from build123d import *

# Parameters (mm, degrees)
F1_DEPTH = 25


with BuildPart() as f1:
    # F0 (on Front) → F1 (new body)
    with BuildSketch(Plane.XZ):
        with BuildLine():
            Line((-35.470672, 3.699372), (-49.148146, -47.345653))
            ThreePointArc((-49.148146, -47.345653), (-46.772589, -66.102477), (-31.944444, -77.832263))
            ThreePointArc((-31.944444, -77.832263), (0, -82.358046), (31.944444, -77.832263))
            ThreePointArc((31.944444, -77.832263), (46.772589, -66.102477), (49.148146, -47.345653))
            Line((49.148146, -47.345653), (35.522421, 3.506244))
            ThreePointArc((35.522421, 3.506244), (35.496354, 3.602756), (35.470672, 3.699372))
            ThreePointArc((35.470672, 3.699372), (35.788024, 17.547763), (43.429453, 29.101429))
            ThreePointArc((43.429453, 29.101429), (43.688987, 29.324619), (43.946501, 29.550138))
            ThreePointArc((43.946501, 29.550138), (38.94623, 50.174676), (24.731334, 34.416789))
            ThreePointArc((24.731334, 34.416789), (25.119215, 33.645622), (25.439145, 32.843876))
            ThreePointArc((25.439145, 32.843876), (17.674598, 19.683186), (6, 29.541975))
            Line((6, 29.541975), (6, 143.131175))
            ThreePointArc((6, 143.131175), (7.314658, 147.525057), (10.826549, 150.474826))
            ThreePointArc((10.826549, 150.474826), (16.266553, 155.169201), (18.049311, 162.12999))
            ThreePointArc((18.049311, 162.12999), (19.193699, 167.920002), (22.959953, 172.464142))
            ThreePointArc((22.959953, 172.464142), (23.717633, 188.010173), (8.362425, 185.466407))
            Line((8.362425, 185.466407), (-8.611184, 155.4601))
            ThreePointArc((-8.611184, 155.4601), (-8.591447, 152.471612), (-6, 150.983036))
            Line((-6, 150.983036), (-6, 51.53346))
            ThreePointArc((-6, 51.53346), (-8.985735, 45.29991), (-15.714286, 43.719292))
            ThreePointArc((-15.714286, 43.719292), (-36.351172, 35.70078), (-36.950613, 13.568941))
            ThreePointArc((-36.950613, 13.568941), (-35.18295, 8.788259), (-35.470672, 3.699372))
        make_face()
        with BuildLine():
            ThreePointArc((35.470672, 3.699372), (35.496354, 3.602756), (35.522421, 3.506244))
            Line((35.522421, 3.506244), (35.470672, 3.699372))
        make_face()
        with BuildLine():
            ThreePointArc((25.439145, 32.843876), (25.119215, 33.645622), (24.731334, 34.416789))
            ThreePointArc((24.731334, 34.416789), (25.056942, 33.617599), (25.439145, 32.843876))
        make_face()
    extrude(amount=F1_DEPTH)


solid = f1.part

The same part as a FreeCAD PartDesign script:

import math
import FreeCAD as App
import Part
import Sketcher
Q = App.Units.Quantity

doc = App.newDocument("Part")
body = doc.addObject("PartDesign::Body", "Body")

# Sketch on XZ plane
sketch1 = doc.addObject("Sketcher::SketchObject", "Sketch")
body.addObject(sketch1)
sketch1.AttachmentSupport = (doc.XZ_Plane, [""])
sketch1.MapMode = "FlatFace"
sketch1.addGeometry(Part.LineSegment(App.Vector(-35.470672, 3.699372, 0), App.Vector(-49.148146, -47.345653, 0)), False)
sketch1.addGeometry(Part.ArcOfCircle(Part.Circle(App.Vector(-24.999999, -53.816128, 0), App.Vector(0, 0, 1), 25.000001), math.radians(165.000004), math.radians(253.872378)), False)
sketch1.addGeometry(Part.ArcOfCircle(Part.Circle(App.Vector(0, 32.641968, 0), App.Vector(0, 0, 1), 115.000014), math.radians(-106.127618), math.radians(-73.872382)), False)
sketch1.addGeometry(Part.ArcOfCircle(Part.Circle(App.Vector(24.999999, -53.816128, 0), App.Vector(0, 0, 1), 25.000001), math.radians(-73.872378), math.radians(14.999996)), False)
sketch1.addGeometry(Part.LineSegment(App.Vector(49.148146, -47.345653, 0), App.Vector(35.522421, 3.506244, 0)), False)
sketch1.addGeometry(Part.LineSegment(App.Vector(35.522421, 3.506244, 0), App.Vector(35.470672, 3.699372, 0)), False)
sketch1.addGeometry(Part.ArcOfCircle(Part.Circle(App.Vector(59.644497, 10.073232, 0), App.Vector(0, 0, 1), 24.999999), math.radians(130.436267), math.radians(194.770885)), False)
sketch1.addGeometry(Part.ArcOfCircle(Part.Circle(App.Vector(18.778443, 58.029074, 0), App.Vector(0, 0, 1), 38.006328), math.radians(-49.563659), math.radians(-48.531587)), False)
sketch1.addGeometry(Part.ArcOfCircle(Part.Circle(App.Vector(36, 38.541975, 0), App.Vector(0, 0, 1), 12), math.radians(-48.531486), math.radians(200.106455)), False)
sketch1.addGeometry(Part.ArcOfCircle(Part.Circle(App.Vector(35.999917, 38.541938, 0), App.Vector(0, 0, 1), 11.999909), math.radians(-159.893572), math.radians(-151.650928)), False)
sketch1.addGeometry(Part.ArcOfCircle(Part.Circle(App.Vector(16, 29.541975, 0), App.Vector(0, 0, 1), 10), math.radians(-179.999999), math.radians(19.280312)), False)
sketch1.addGeometry(Part.LineSegment(App.Vector(6, 29.541975, 0), App.Vector(6, 143.131175, 0)), False)
sketch1.addGeometry(Part.ArcOfCircle(Part.Circle(App.Vector(14.000001, 143.131174, 0), App.Vector(0, 0, 1), 8.000001), math.radians(113.370885), math.radians(179.999995)), False)
sketch1.addGeometry(Part.ArcOfCircle(Part.Circle(App.Vector(6.066372, 161.490303, 0), App.Vector(0, 0, 1), 12.000001), math.radians(-66.629122), math.radians(3.055728)), False)
sketch1.addGeometry(Part.ArcOfCircle(Part.Circle(App.Vector(30.032249, 162.769678, 0), App.Vector(0, 0, 1), 12), math.radians(126.111463), math.radians(183.055733)), False)
sketch1.addGeometry(Part.ArcOfCircle(Part.Circle(App.Vector(17.066373, 180.542862, 0), App.Vector(0, 0, 1), 10), math.radians(-53.888535), math.radians(150.504545)), False)
sketch1.addGeometry(Part.LineSegment(App.Vector(8.362425, 185.466407, 0), App.Vector(-8.611184, 155.4601, 0)), False)
sketch1.addGeometry(Part.ArcOfCircle(Part.Circle(App.Vector(-6, 153.983036, 0), App.Vector(0, 0, 1), 3), math.radians(150.504535), math.radians(270)), False)
sketch1.addGeometry(Part.LineSegment(App.Vector(-6, 150.983036, 0), App.Vector(-6, 51.53346, 0)), False)
sketch1.addGeometry(Part.ArcOfCircle(Part.Circle(App.Vector(-14, 51.53346, 0), App.Vector(0, 0, 1), 8), math.radians(-102.373628), math.radians(0)), False)
sketch1.addGeometry(Part.ArcOfCircle(Part.Circle(App.Vector(-20, 24.183871, 0), App.Vector(0, 0, 1), 20), math.radians(77.626376), math.radians(212.055906)), False)
sketch1.addGeometry(Part.ArcOfCircle(Part.Circle(App.Vector(-47.544746, 6.934609, 0), App.Vector(0, 0, 1), 12.500001), math.radians(-14.999993), math.radians(32.055911)), False)
sketch1.addConstraint(Sketcher.Constraint("Coincident", 0, 2, 1, 1))
sketch1.addConstraint(Sketcher.Constraint("Coincident", 1, 2, 2, 1))
sketch1.addConstraint(Sketcher.Constraint("Coincident", 2, 2, 3, 1))
sketch1.addConstraint(Sketcher.Constraint("Coincident", 3, 2, 4, 1))
sketch1.addConstraint(Sketcher.Constraint("Coincident", 4, 2, 5, 1))
sketch1.addConstraint(Sketcher.Constraint("Coincident", 5, 2, 6, 2))
sketch1.addConstraint(Sketcher.Constraint("Coincident", 6, 1, 7, 1))
sketch1.addConstraint(Sketcher.Constraint("Coincident", 7, 2, 8, 1))
sketch1.addConstraint(Sketcher.Constraint("Coincident", 8, 2, 9, 1))
sketch1.addConstraint(Sketcher.Constraint("Coincident", 9, 2, 10, 2))
sketch1.addConstraint(Sketcher.Constraint("Coincident", 10, 1, 11, 1))
sketch1.addConstraint(Sketcher.Constraint("Coincident", 11, 2, 12, 2))
sketch1.addConstraint(Sketcher.Constraint("Coincident", 12, 1, 13, 1))
sketch1.addConstraint(Sketcher.Constraint("Coincident", 13, 2, 14, 2))
sketch1.addConstraint(Sketcher.Constraint("Coincident", 14, 1, 15, 1))
sketch1.addConstraint(Sketcher.Constraint("Coincident", 15, 2, 16, 1))
sketch1.addConstraint(Sketcher.Constraint("Coincident", 16, 2, 17, 1))
sketch1.addConstraint(Sketcher.Constraint("Coincident", 17, 2, 18, 1))
sketch1.addConstraint(Sketcher.Constraint("Coincident", 18, 2, 19, 2))
sketch1.addConstraint(Sketcher.Constraint("Coincident", 19, 1, 20, 1))
sketch1.addConstraint(Sketcher.Constraint("Coincident", 20, 2, 21, 2))
sketch1.addConstraint(Sketcher.Constraint("Coincident", 21, 1, 0, 1))
sketch1.addConstraint(Sketcher.Constraint("Vertical", 11))
sketch1.addConstraint(Sketcher.Constraint("Vertical", 18))
sketch1.addConstraint(Sketcher.Constraint("PointOnObject", 2, 3, -2))
sketch1.addConstraint(Sketcher.Constraint("Radius", 1, Q("25.000001 mm")))
sketch1.addConstraint(Sketcher.Constraint("Radius", 3, Q("25.000001 mm")))
sketch1.addConstraint(Sketcher.Constraint("Radius", 6, Q("24.999999 mm")))
sketch1.addConstraint(Sketcher.Constraint("Radius", 8, Q("12 mm")))
sketch1.addConstraint(Sketcher.Constraint("Radius", 10, Q("10 mm")))
sketch1.addConstraint(Sketcher.Constraint("Radius", 12, Q("8.000001 mm")))
sketch1.addConstraint(Sketcher.Constraint("Radius", 13, Q("12.000001 mm")))
sketch1.addConstraint(Sketcher.Constraint("Radius", 14, Q("12 mm")))
sketch1.addConstraint(Sketcher.Constraint("Radius", 15, Q("10 mm")))
sketch1.addConstraint(Sketcher.Constraint("Radius", 17, Q("3 mm")))
sketch1.addConstraint(Sketcher.Constraint("Radius", 19, Q("8 mm")))
sketch1.addConstraint(Sketcher.Constraint("Radius", 20, Q("20 mm")))
sketch1.addConstraint(Sketcher.Constraint("Radius", 21, Q("12.500001 mm")))
sketch1.addConstraint(Sketcher.Constraint("DistanceX", 1, 3, -1, 1, Q("24.999999 mm")))
sketch1.addConstraint(Sketcher.Constraint("DistanceX", -1, 1, 3, 3, Q("24.999999 mm")))
sketch1.addConstraint(Sketcher.Constraint("DistanceX", -1, 1, 8, 3, Q("36 mm")))
sketch1.addConstraint(Sketcher.Constraint("DistanceX", -1, 1, 10, 3, Q("16 mm")))
sketch1.addConstraint(Sketcher.Constraint("DistanceX", 17, 3, -1, 1, Q("6 mm")))
sketch1.addConstraint(Sketcher.Constraint("DistanceX", 19, 3, -1, 1, Q("14 mm")))
sketch1.addConstraint(Sketcher.Constraint("DistanceX", 20, 3, -1, 1, Q("20 mm")))
sketch1.addConstraint(Sketcher.Constraint("DistanceY", 10, 3, 8, 3, Q("9 mm")))
sketch1.addConstraint(Sketcher.Constraint("DistanceX", 13, 3, 15, 3, Q("11 mm")))
sketch1.addConstraint(Sketcher.Constraint("Radius", 7, Q("38.006328 mm")))
sketch1.addConstraint(Sketcher.Constraint("Radius", 9, Q("11.999909 mm")))
sketch1.addConstraint(Sketcher.Constraint("DistanceY", 11, 1, 11, 2, Q("113.5892 mm")))
sketch1.addConstraint(Sketcher.Constraint("Radius", 2, Q("115.000014 mm")))
sketch1.addConstraint(Sketcher.Constraint("Distance", 0, Q("52.845699 mm")))
sketch1.addConstraint(Sketcher.Constraint("DistanceX", -1, 1, 7, 2, Q("43.946501 mm")))
sketch1.addConstraint(Sketcher.Constraint("DistanceY", -1, 1, 16, 2, Q("155.4601 mm")))
sketch1.addConstraint(Sketcher.Constraint("DistanceX", 3, 3, 6, 3, Q("34.644499 mm")))
sketch1.addConstraint(Sketcher.Constraint("DistanceY", 8, 3, 7, 3, Q("19.487099 mm")))
sketch1.addConstraint(Sketcher.Constraint("DistanceY", 7, 3, 12, 3, Q("85.1021 mm")))
sketch1.addConstraint(Sketcher.Constraint("DistanceX", 0, 2, 21, 3, Q("1.6034 mm")))
sketch1.addConstraint(Sketcher.Constraint("DistanceX", 21, 3, 1, 2, Q("15.600302 mm")))
sketch1.addConstraint(Sketcher.Constraint("DistanceY", 7, 2, 9, 3, Q("8.9918 mm")))
sketch1.addConstraint(Sketcher.Constraint("DistanceY", 10, 1, 9, 2, Q("3.301901 mm")))
sketch1.addConstraint(Sketcher.Constraint("DistanceX", 12, 1, 14, 3, Q("19.2057 mm")))
sketch1.addConstraint(Sketcher.Constraint("DistanceY", 21, 1, 20, 3, Q("20.484499 mm")))
sketch1.addConstraint(Sketcher.Constraint("Distance", 5, Q("0.199941 mm")))
sketch1.addConstraint(Sketcher.Constraint("DistanceY", 18, 2, 18, 1, Q("99.449576 mm")))
sketch1.addConstraint(Sketcher.Constraint("DistanceY", -1, 1, 9, 3, Q("38.541938 mm")))
sketch1.addConstraint(Sketcher.Constraint("DistanceX", -1, 1, 14, 3, Q("30.032249 mm")))
sketch1.addConstraint(Sketcher.Constraint("DistanceY", -1, 1, 15, 3, Q("180.542862 mm")))
sketch1.addConstraint(Sketcher.Constraint("DistanceY", -1, 1, 19, 3, Q("51.53346 mm")))
sketch1.addConstraint(Sketcher.Constraint("DistanceY", -1, 1, 21, 3, Q("6.934609 mm")))
sketch1.addConstraint(Sketcher.Constraint("DistanceX", -1, 1, 4, 2, Q("35.522421 mm")))
sketch1.addConstraint(Sketcher.Constraint("DistanceY", -1, 1, 5, 2, Q("3.699372 mm")))
sketch1.addConstraint(Sketcher.Constraint("DistanceY", -1, 1, 6, 1, Q("29.101429 mm")))
sketch1.addConstraint(Sketcher.Constraint("DistanceY", -1, 1, 8, 2, Q("34.416789 mm")))
sketch1.addConstraint(Sketcher.Constraint("DistanceX", -1, 1, 13, 2, Q("18.049311 mm")))
sketch1.addConstraint(Sketcher.Constraint("DistanceY", -1, 1, 18, 2, Q("51.53346 mm")))
sketch1.addConstraint(Sketcher.Constraint("DistanceY", -1, 1, 19, 1, Q("43.719292 mm")))
sketch1.addConstraint(Sketcher.Constraint("DistanceY", -1, 1, 20, 2, Q("13.568941 mm")))
sketch1.addConstraint(Sketcher.Constraint("DistanceX", 0, 2, 2, 2, Q("81.09259 mm")))
sketch1.addConstraint(Sketcher.Constraint("DistanceY", 2, 2, 3, 2, Q("30.48661 mm")))
sketch1.addConstraint(Sketcher.Constraint("DistanceX", 15, 3, 14, 1, Q("5.89358 mm")))
sketch1.addConstraint(Sketcher.Constraint("DistanceX", 15, 2, 14, 1, Q("14.597528 mm")))
pad1 = doc.addObject("PartDesign::Pad", "Pad")
body.addObject(pad1)
pad1.Profile = sketch1
pad1.Length = 25

doc.recompute()
